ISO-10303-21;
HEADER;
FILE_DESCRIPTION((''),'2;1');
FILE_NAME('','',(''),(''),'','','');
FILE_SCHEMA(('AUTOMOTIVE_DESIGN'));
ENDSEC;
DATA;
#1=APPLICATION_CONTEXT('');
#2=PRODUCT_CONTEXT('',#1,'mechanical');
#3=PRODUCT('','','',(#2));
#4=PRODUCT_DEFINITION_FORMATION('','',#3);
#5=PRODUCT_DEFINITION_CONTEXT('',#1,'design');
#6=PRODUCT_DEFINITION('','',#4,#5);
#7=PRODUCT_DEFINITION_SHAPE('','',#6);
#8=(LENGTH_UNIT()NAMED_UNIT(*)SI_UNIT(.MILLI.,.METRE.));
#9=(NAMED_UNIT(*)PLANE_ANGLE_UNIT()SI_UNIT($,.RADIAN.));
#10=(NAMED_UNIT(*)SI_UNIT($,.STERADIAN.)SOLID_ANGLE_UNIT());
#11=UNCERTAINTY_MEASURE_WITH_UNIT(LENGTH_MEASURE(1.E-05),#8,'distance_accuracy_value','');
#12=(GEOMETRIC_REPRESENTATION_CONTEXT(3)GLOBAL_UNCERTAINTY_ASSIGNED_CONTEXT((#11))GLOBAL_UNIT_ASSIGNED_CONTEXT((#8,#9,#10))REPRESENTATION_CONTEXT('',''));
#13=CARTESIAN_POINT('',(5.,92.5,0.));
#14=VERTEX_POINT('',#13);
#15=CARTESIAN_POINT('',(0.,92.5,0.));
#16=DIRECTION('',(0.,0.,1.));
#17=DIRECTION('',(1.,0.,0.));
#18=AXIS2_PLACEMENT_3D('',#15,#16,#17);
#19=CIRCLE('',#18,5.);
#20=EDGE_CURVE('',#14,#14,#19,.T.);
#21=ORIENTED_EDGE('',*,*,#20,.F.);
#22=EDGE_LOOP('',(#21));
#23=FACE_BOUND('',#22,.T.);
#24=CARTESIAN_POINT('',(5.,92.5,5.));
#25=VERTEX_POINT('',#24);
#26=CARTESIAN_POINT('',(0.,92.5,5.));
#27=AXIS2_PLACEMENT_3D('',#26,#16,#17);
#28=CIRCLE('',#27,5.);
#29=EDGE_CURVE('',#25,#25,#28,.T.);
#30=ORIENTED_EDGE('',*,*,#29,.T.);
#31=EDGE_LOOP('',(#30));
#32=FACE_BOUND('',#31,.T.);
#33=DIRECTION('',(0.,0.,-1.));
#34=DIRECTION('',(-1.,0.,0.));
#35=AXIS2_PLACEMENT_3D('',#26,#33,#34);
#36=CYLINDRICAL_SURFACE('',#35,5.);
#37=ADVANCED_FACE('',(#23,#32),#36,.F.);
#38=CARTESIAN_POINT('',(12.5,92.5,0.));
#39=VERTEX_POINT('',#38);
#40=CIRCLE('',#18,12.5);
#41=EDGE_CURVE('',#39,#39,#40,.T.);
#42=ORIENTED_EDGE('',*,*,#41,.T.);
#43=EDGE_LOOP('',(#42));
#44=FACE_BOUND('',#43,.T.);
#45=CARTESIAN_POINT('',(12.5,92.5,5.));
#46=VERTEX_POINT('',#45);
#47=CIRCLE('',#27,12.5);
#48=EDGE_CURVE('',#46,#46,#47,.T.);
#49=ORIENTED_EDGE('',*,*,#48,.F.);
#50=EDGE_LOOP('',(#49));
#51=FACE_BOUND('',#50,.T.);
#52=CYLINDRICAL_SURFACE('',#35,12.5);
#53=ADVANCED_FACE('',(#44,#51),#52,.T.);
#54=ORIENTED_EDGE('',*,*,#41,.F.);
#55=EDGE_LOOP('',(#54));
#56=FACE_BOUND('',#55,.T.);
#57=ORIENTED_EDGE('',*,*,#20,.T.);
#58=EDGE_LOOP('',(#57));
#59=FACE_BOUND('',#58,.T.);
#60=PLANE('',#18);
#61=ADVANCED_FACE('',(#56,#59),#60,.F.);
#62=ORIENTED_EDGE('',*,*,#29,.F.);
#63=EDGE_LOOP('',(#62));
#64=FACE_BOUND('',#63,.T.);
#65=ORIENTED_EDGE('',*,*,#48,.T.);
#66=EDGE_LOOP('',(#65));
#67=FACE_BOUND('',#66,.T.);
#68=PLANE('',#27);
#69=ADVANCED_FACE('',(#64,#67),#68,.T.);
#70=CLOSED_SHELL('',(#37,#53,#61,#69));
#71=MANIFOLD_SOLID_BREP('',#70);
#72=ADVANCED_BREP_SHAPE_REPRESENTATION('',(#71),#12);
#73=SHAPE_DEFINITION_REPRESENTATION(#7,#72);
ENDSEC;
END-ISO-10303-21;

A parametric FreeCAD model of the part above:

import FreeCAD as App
import Part
import Sketcher
from FreeCAD import Vector

doc = App.newDocument("Part")
body = doc.addObject("PartDesign::Body", "Body")

# Sketch on XY plane
sketch1 = body.newObject("Sketcher::SketchObject", "Sketch")
sketch1.AttachmentSupport = (doc.getObject("XY_Plane"), [""])
sketch1.MapMode = "FlatFace"
sketch1.addGeometry([
    Part.Circle(Vector(0, 92, 0), Vector(0, 0, 1), 12),
    Part.Circle(Vector(0, 92, 0), Vector(0, 0, 1), 5),
], False)
sketch1.addConstraint([
    Sketcher.Constraint("Coincident", 1, 3, 0, 3),
    Sketcher.Constraint("PointOnObject", 0, 3, -2),
    Sketcher.Constraint("Diameter", 0, 25.0),
    Sketcher.Constraint("Diameter", 1, 10.0),
    Sketcher.Constraint("DistanceY", -1, 1, 0, 3, 92.5),
])
pad1 = body.newObject("PartDesign::Pad", "Pad")
pad1.Profile = sketch1
pad1.Length = 5

doc.recompute()
